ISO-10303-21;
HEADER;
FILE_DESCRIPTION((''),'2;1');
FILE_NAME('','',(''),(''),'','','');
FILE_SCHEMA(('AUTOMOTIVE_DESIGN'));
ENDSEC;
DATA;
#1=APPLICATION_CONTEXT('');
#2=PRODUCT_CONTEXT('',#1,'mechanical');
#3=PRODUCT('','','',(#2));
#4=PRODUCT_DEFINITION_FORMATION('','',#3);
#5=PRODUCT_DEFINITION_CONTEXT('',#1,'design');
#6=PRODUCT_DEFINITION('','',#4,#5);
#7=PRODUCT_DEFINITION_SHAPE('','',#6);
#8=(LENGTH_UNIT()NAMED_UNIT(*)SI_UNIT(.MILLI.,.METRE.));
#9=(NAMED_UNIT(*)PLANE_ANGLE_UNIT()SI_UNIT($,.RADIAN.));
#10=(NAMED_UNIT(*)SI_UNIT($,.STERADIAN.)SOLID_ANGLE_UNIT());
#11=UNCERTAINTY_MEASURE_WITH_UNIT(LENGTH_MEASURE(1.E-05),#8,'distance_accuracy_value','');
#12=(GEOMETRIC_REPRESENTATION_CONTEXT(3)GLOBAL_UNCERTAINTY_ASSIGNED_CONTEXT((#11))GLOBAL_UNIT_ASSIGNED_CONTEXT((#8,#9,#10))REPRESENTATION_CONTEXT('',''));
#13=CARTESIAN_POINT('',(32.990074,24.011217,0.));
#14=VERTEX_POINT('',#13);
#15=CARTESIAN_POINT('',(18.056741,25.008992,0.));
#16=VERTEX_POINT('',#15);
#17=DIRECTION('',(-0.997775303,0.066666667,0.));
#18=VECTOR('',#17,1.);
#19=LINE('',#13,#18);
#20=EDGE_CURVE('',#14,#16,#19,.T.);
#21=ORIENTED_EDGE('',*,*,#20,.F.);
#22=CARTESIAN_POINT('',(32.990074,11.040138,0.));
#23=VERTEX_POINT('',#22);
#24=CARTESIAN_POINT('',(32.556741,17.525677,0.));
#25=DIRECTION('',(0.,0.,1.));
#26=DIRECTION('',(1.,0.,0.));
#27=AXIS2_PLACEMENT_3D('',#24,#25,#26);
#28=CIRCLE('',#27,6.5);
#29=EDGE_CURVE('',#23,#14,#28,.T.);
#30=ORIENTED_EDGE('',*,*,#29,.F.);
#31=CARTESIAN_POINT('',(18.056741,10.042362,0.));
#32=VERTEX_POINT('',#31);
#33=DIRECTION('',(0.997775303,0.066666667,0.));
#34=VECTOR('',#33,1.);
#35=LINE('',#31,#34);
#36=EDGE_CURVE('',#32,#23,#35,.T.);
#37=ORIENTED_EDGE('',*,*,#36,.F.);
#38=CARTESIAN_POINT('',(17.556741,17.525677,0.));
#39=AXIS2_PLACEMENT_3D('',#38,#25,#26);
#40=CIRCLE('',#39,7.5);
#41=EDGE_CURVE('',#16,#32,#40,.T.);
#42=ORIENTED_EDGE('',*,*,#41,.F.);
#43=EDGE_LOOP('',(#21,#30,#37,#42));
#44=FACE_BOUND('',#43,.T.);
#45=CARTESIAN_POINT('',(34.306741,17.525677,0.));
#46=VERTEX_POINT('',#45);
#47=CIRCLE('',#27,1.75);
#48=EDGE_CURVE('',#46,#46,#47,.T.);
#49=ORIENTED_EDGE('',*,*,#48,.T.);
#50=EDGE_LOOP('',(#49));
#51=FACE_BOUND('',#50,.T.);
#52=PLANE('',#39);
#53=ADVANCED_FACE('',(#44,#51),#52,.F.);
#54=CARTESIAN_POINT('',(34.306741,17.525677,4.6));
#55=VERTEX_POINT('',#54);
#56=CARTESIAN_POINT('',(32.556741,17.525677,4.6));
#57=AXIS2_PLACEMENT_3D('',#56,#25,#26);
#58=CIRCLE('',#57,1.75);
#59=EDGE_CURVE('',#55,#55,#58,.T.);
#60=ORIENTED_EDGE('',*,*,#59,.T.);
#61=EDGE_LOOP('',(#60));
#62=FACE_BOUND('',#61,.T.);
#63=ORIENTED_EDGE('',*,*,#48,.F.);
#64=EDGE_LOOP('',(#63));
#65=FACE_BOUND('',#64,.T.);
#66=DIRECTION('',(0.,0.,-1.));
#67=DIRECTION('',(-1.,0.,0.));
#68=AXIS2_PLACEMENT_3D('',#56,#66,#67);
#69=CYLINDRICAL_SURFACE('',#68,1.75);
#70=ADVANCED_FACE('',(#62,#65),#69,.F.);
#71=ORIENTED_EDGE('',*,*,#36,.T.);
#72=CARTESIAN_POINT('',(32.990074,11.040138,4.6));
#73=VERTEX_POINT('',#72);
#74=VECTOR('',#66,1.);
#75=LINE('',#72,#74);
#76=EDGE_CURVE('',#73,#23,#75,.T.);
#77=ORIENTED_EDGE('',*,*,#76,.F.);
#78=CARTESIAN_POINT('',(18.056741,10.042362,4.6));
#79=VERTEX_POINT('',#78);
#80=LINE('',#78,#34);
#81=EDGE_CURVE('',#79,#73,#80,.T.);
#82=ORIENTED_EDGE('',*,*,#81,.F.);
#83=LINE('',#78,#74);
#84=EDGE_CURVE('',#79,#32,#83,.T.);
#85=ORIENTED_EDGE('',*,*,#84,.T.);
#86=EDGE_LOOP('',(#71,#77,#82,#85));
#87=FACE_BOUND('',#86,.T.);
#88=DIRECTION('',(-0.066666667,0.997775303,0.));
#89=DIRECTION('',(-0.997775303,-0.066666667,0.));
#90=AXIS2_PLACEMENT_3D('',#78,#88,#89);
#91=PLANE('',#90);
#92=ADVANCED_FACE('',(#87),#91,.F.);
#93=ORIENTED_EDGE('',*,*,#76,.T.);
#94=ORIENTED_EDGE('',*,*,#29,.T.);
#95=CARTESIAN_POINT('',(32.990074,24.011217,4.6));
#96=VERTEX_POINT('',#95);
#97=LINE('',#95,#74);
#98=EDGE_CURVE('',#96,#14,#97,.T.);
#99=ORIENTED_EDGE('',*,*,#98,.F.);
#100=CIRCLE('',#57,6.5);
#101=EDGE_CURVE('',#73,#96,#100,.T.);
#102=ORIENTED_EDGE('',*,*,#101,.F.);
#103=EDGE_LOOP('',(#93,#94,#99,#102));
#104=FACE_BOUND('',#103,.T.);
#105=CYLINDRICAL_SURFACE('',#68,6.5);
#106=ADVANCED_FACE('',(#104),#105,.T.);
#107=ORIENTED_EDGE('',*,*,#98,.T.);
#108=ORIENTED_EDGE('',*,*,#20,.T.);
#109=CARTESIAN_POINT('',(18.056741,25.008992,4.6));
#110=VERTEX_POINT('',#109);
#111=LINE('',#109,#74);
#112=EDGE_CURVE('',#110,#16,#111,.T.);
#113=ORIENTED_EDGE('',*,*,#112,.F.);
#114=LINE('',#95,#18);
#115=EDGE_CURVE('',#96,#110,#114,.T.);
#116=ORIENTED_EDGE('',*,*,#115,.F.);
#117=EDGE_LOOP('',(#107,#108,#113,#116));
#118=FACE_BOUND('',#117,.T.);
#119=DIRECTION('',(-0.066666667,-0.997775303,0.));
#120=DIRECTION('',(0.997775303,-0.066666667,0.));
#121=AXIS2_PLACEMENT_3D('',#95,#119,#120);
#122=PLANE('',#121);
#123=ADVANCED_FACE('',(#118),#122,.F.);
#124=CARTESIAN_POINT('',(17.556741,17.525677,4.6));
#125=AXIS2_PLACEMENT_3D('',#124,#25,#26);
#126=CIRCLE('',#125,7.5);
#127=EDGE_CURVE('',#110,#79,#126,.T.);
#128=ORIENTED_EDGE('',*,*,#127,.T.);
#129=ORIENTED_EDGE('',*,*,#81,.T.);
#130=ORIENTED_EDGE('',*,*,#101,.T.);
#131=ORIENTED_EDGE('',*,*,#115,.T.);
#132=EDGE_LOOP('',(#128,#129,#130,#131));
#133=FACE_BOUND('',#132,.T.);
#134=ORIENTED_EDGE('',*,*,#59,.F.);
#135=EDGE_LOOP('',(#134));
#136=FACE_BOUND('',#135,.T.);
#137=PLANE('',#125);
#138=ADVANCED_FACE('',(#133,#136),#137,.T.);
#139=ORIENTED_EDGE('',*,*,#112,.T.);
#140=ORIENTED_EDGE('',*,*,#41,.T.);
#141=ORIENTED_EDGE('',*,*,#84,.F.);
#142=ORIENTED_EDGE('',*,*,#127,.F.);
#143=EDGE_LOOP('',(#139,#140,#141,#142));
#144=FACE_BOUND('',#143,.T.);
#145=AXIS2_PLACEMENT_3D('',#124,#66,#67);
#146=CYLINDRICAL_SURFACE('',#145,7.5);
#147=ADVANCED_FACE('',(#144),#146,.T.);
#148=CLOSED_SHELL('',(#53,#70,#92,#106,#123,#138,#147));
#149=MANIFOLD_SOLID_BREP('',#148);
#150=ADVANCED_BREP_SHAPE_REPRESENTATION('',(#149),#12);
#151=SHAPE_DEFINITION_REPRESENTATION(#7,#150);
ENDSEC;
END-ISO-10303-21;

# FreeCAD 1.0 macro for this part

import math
import FreeCAD as App
import Part
import Sketcher
from FreeCAD import Vector

doc = App.newDocument("Part")
body = doc.addObject("PartDesign::Body", "Body")

# Sketch on XY plane
sketch1 = body.newObject("Sketcher::SketchObject", "Sketch")
sketch1.AttachmentSupport = (doc.getObject("XY_Plane"), [""])
sketch1.MapMode = "FlatFace"
sketch1.addGeometry(Part.LineSegment(Vector(18.1, 10, 0), Vector(33, 11, 0)), False)
sketch1.addGeometry(Part.ArcOfCircle(Part.Circle(Vector(32.6, 17.5, 0), Vector(0, 0, 1), 6.5), math.radians(-86), math.radians(86)), False)
sketch1.addGeometry(Part.LineSegment(Vector(33, 24, 0), Vector(18.1, 25, 0)), False)
sketch1.addGeometry(Part.ArcOfCircle(Part.Circle(Vector(17.6, 17.5, 0), Vector(0, 0, 1), 7.5), math.radians(86), math.radians(274)), False)
sketch1.addGeometry(Part.Circle(Vector(32.6, 17.5, 0), Vector(0, 0, 1), 1.8), False)
sketch1.addConstraint(Sketcher.Constraint("Tangent", 0, 2, 1, 1))
sketch1.addConstraint(Sketcher.Constraint("Tangent", 1, 2, 2, 1))
sketch1.addConstraint(Sketcher.Constraint("Tangent", 2, 2, 3, 1))
sketch1.addConstraint(Sketcher.Constraint("Tangent", 3, 2, 0, 1))
sketch1.addConstraint(Sketcher.Constraint("Coincident", 4, 3, 1, 3))
sketch1.addConstraint(Sketcher.Constraint("Horizontal", 1, 3, 3, 3))
sketch1.addConstraint(Sketcher.Constraint("Diameter", 4, 3.5))
sketch1.addConstraint(Sketcher.Constraint("Radius", 1, 6.5))
sketch1.addConstraint(Sketcher.Constraint("Radius", 3, 7.5))
sketch1.addConstraint(Sketcher.Constraint("DistanceX", 3, 3, 1, 3, 15.0))
sketch1.addConstraint(Sketcher.Constraint("DistanceX", -1, 1, 1, 3, 32.556741))
sketch1.addConstraint(Sketcher.Constraint("DistanceY", -1, 1, 1, 3, 17.525677))
pad1 = body.newObject("PartDesign::Pad", "Pad")
pad1.Profile = sketch1
pad1.Length = 4.6

doc.recompute()
